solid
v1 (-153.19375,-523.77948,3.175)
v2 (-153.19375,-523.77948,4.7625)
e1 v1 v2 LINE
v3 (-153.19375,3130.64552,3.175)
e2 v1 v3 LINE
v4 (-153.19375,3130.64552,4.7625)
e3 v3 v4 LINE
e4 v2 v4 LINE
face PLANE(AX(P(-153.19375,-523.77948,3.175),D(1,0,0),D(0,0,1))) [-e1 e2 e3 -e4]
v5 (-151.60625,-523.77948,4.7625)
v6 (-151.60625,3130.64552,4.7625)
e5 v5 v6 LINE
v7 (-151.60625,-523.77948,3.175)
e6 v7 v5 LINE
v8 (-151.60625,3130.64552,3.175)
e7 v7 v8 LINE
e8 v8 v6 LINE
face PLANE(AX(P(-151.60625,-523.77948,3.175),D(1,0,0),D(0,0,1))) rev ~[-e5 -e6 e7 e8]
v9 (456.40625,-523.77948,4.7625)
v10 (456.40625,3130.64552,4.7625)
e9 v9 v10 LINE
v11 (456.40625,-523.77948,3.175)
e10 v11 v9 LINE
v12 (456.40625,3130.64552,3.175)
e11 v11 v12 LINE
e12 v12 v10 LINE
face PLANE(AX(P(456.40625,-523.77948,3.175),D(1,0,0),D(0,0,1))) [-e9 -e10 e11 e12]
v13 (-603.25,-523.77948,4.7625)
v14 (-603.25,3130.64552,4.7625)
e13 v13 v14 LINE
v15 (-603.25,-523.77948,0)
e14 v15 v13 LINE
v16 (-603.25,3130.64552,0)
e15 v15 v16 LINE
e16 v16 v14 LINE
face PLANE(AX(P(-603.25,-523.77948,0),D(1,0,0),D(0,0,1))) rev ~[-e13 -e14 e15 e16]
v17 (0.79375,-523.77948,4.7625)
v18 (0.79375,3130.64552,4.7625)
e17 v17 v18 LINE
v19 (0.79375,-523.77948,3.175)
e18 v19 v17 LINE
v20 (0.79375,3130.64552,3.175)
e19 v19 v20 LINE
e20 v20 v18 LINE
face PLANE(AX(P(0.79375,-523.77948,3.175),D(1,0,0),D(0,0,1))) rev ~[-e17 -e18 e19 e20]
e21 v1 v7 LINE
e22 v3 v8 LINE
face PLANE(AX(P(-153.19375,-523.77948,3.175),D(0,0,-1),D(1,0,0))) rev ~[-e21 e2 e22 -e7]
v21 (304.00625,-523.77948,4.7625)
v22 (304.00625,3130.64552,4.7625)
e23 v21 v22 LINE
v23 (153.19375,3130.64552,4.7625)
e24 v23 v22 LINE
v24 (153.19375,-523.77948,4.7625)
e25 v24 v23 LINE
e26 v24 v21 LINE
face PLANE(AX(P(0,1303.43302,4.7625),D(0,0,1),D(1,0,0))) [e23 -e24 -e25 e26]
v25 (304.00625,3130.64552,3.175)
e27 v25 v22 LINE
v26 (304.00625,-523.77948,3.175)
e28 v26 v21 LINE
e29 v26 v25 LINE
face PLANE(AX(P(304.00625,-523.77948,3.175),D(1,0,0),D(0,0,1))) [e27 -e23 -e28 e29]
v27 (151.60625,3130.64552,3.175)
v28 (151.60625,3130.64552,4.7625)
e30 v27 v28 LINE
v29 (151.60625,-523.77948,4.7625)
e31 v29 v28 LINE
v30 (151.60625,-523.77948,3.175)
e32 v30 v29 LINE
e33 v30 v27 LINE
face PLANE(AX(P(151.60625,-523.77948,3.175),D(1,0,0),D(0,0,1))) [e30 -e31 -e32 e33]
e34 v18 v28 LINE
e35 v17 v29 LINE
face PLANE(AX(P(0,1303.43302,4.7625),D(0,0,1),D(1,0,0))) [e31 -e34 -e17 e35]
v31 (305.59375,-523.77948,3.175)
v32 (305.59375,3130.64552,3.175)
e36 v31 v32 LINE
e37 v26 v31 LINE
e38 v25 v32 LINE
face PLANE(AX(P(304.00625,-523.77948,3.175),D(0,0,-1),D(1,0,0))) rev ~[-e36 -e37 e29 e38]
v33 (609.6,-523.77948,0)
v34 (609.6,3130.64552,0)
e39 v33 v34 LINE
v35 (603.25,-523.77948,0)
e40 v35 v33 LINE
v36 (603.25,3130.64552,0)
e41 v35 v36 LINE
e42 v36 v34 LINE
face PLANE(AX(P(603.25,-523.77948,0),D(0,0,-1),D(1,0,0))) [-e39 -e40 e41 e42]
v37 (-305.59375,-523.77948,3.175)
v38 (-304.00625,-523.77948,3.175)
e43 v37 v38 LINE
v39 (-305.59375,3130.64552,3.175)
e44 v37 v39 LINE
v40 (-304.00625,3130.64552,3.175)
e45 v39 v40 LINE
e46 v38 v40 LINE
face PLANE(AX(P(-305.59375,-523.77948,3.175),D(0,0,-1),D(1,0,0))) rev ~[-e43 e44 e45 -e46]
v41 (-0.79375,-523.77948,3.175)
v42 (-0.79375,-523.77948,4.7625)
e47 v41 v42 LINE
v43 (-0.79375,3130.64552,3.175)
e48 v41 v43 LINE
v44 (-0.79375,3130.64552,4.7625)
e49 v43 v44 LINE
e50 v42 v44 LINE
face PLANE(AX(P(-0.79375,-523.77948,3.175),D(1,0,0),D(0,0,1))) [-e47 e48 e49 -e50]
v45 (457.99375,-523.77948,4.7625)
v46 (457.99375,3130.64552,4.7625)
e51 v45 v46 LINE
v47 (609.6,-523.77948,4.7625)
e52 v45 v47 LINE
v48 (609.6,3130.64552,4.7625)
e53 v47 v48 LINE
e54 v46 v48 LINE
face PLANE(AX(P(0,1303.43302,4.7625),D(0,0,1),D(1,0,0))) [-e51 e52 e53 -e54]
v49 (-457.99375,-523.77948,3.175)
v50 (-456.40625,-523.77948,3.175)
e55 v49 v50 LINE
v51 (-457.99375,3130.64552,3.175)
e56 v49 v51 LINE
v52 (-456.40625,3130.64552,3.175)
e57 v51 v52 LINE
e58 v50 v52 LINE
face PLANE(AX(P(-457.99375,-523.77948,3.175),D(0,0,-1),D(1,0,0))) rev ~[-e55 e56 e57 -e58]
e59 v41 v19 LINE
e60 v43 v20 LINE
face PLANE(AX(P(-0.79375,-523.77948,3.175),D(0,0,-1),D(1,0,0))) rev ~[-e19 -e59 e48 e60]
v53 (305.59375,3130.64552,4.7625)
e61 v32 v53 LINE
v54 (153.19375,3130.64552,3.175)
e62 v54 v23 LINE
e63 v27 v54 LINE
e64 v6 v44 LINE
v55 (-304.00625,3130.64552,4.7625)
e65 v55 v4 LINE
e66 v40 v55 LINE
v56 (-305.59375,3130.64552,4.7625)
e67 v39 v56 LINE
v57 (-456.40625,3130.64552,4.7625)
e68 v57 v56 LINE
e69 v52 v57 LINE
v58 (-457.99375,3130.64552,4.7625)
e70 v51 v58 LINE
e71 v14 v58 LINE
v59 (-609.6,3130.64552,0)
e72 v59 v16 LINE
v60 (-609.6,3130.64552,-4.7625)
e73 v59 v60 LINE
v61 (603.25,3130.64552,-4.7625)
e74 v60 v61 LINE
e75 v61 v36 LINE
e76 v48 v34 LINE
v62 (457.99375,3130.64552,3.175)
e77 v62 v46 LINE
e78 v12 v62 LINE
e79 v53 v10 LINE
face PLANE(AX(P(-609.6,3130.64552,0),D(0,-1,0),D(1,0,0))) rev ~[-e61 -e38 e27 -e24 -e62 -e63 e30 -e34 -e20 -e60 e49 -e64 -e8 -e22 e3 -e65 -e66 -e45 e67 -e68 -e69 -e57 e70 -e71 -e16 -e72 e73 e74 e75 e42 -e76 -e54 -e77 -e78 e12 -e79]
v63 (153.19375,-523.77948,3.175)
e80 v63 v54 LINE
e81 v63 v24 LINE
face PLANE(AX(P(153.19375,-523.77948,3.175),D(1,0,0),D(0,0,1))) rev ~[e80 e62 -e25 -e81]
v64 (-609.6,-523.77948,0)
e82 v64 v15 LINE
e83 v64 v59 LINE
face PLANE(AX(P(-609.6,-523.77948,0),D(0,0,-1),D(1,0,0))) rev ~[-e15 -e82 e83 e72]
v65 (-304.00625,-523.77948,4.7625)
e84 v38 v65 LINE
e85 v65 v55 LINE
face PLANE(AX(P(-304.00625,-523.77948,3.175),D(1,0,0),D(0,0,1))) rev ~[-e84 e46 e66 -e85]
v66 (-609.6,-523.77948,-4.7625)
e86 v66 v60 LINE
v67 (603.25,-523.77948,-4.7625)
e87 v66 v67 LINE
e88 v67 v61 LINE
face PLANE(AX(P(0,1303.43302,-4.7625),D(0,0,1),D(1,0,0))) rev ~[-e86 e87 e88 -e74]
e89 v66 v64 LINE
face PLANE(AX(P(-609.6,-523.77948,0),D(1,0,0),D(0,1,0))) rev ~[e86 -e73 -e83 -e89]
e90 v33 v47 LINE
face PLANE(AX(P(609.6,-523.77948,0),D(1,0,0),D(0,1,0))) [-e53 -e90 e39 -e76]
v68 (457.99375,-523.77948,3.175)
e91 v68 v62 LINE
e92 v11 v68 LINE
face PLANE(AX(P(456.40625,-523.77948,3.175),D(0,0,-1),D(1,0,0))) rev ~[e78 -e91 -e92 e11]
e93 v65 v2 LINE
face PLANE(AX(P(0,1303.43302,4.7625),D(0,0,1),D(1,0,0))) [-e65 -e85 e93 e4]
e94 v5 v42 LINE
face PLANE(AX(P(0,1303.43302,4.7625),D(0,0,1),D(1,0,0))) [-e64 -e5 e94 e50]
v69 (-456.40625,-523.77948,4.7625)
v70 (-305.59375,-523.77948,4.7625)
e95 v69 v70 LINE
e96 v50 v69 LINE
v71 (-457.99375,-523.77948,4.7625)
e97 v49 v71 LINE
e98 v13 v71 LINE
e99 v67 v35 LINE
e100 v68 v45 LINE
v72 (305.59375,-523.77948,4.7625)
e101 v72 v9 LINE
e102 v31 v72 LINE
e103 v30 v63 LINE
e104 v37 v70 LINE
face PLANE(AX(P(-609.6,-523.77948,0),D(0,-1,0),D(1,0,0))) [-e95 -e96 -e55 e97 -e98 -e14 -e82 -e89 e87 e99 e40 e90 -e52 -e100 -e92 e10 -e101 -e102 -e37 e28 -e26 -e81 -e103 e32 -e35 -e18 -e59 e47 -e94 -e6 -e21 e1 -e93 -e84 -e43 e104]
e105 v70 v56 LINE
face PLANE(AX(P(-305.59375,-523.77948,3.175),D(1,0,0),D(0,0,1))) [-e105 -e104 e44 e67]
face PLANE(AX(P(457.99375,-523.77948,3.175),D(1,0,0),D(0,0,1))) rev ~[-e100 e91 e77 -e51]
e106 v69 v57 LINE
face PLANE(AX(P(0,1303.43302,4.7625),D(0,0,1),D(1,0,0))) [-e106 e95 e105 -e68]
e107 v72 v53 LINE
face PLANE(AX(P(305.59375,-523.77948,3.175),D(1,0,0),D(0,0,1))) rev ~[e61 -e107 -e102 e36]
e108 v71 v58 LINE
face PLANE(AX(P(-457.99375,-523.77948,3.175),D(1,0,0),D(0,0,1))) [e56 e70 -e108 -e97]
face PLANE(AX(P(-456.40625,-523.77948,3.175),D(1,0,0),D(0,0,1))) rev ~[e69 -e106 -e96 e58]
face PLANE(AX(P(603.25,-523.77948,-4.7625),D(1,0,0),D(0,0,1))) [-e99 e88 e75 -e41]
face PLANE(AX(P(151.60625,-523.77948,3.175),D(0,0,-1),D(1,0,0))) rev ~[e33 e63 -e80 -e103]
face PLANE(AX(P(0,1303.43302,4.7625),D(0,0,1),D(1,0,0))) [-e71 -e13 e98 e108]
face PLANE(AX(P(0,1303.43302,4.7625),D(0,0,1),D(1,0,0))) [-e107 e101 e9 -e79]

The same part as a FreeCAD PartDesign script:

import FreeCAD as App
import Part
import Sketcher

V = App.Vector
Q = App.Units.Quantity

doc = App.newDocument("Part")
body = doc.addObject("PartDesign::Body", "Body")

# Sketch on XY plane
sketch1 = doc.addObject("Sketcher::SketchObject", "Sketch")
body.addObject(sketch1)
sketch1.AttachmentSupport = (doc.XY_Plane, [""])
sketch1.MapMode = "FlatFace"
sketch1.addGeometry([
    Part.LineSegment(V(-609.6, 3130.64552, 0), V(-609.6, -523.77948, 0)),
    Part.LineSegment(V(-609.6, -523.77948, 0), V(609.6, -523.77948, 0)),
    Part.LineSegment(V(609.6, -523.77948, 0), V(609.6, 3130.64552, 0)),
    Part.LineSegment(V(609.6, 3130.64552, 0), V(-609.6, 3130.64552, 0)),
], False)
sketch1.addConstraint([
    Sketcher.Constraint("Coincident", 0, 2, 1, 1),
    Sketcher.Constraint("Coincident", 1, 2, 2, 1),
    Sketcher.Constraint("Coincident", 2, 2, 3, 1),
    Sketcher.Constraint("Coincident", 3, 2, 0, 1),
    Sketcher.Constraint("Vertical", 0),
    Sketcher.Constraint("Horizontal", 1),
    Sketcher.Constraint("Vertical", 2),
    Sketcher.Constraint("Horizontal", 3),
    Sketcher.Constraint("DistanceX", 1, 1, 1, 2, Q("48 in")),
    Sketcher.Constraint("DistanceX", 0, 2, -1, 1, Q("24 in")),
    Sketcher.Constraint("DistanceY", 0, 2, 0, 1, Q("143.875 in")),
    Sketcher.Constraint("DistanceY", 0, 2, -1, 1, Q("523.77948 mm")),
])
pad1 = doc.addObject("PartDesign::Pad", "Pad")
body.addObject(pad1)
pad1.Profile = sketch1
pad1.Length = Q("0.375 in")
pad1.Midplane = True

# Sketch on XZ plane
sketch2 = doc.addObject("Sketcher::SketchObject", "Sketch001")
body.addObject(sketch2)
sketch2.AttachmentSupport = (doc.XZ_Plane, [""])
sketch2.MapMode = "FlatFace"
sketch2.AttachmentOffset = App.Placement(V(0, 0, 523.77948), App.Rotation())
sketch2.addGeometry([
    Part.LineSegment(V(603.25, 0, 0), V(603.25, -4.7625, 0)),  # 0
    Part.LineSegment(V(603.25, -4.7625, 0), V(609.6, -4.7625, 0)),  # 1
    Part.LineSegment(V(609.6, -4.7625, 0), V(609.6, 0, 0)),  # 2
    Part.LineSegment(V(609.6, 0, 0), V(603.25, 0, 0)),  # 3
    Part.LineSegment(V(-609.6, 4.7625, 0), V(-609.6, 0, 0)),  # 4
    Part.LineSegment(V(-609.6, 0, 0), V(-603.25, 0, 0)),  # 5
    Part.LineSegment(V(-603.25, 0, 0), V(-603.25, 4.7625, 0)),  # 6
    Part.LineSegment(V(-603.25, 4.7625, 0), V(-609.6, 4.7625, 0)),  # 7
], False)
sketch2.addConstraint([
    Sketcher.Constraint("Coincident", 0, 2, 1, 1),
    Sketcher.Constraint("Coincident", 1, 2, 2, 1),
    Sketcher.Constraint("Coincident", 2, 2, 3, 1),
    Sketcher.Constraint("Coincident", 3, 2, 0, 1),
    Sketcher.Constraint("Coincident", 4, 2, 5, 1),
    Sketcher.Constraint("Coincident", 5, 2, 6, 1),
    Sketcher.Constraint("Coincident", 6, 2, 7, 1),
    Sketcher.Constraint("Coincident", 7, 2, 4, 1),
    Sketcher.Constraint("Vertical", 0),
    Sketcher.Constraint("Horizontal", 1),
    Sketcher.Constraint("Vertical", 2),
    Sketcher.Constraint("Horizontal", 3),
    Sketcher.Constraint("Vertical", 4),
    Sketcher.Constraint("Horizontal", 5),
    Sketcher.Constraint("Vertical", 6),
    Sketcher.Constraint("Horizontal", 7),
    Sketcher.Constraint("Symmetric", 2, 2, 4, 2, -1, 1),
    Sketcher.Constraint("Symmetric", 0, 2, 6, 2, -1, 1),
    Sketcher.Constraint("PointOnObject", 2, 2, -1),
    Sketcher.Constraint("DistanceX", -1, 1, 1, 2, Q("24 in")),
    Sketcher.Constraint("DistanceX", 1, 1, 1, 2, Q("0.25 in")),
    Sketcher.Constraint("DistanceY", 0, 2, 0, 1, Q("0.1875 in")),
])
pocket1 = doc.addObject("PartDesign::Pocket", "Pocket")
body.addObject(pocket1)
pocket1.Profile = sketch2
pocket1.Type = "ThroughAll"

# Sketch on XZ plane
sketch3 = doc.addObject("Sketcher::SketchObject", "Sketch002")
body.addObject(sketch3)
sketch3.AttachmentSupport = (doc.XZ_Plane, [""])
sketch3.MapMode = "FlatFace"
sketch3.AttachmentOffset = App.Placement(V(0, 0, 523.77948), App.Rotation())
sketch3.addGeometry([
    Part.LineSegment(V(-457.99375, 4.7625, 0), V(-457.99375, 3.175, 0)),  # 0
    Part.LineSegment(V(-457.99375, 3.175, 0), V(-456.40625, 3.175, 0)),  # 1
    Part.LineSegment(V(-456.40625, 3.175, 0), V(-456.40625, 4.7625, 0)),  # 2
    Part.LineSegment(V(-456.40625, 4.7625, 0), V(-457.99375, 4.7625, 0)),  # 3
    Part.LineSegment(V(-305.59375, 4.7625, 0), V(-305.59375, 3.175, 0)),  # 4
    Part.LineSegment(V(-305.59375, 3.175, 0), V(-304.00625, 3.175, 0)),  # 5
    Part.LineSegment(V(-304.00625, 3.175, 0), V(-304.00625, 4.7625, 0)),  # 6
    Part.LineSegment(V(-304.00625, 4.7625, 0), V(-305.59375, 4.7625, 0)),  # 7
    Part.LineSegment(V(-153.19375, 4.7625, 0), V(-153.19375, 3.175, 0)),  # 8
    Part.LineSegment(V(-153.19375, 3.175, 0), V(-151.60625, 3.175, 0)),  # 9
    Part.LineSegment(V(-151.60625, 3.175, 0), V(-151.60625, 4.7625, 0)),  # 10
    Part.LineSegment(V(-151.60625, 4.7625, 0), V(-153.19375, 4.7625, 0)),  # 11
    Part.LineSegment(V(-0.79375, 4.7625, 0), V(-0.79375, 3.175, 0)),  # 12
    Part.LineSegment(V(-0.79375, 3.175, 0), V(0.79375, 3.175, 0)),  # 13
    Part.LineSegment(V(0.79375, 3.175, 0), V(0.79375, 4.7625, 0)),  # 14
    Part.LineSegment(V(0.79375, 4.7625, 0), V(-0.79375, 4.7625, 0)),  # 15
    Part.LineSegment(V(151.60625, 4.7625, 0), V(151.60625, 3.175, 0)),  # 16
    Part.LineSegment(V(151.60625, 3.175, 0), V(153.19375, 3.175, 0)),  # 17
    Part.LineSegment(V(153.19375, 3.175, 0), V(153.19375, 4.7625, 0)),  # 18
    Part.LineSegment(V(153.19375, 4.7625, 0), V(151.60625, 4.7625, 0)),  # 19
    Part.LineSegment(V(304.00625, 4.7625, 0), V(304.00625, 3.175, 0)),  # 20
    Part.LineSegment(V(304.00625, 3.175, 0), V(305.59375, 3.175, 0)),  # 21
    Part.LineSegment(V(305.59375, 3.175, 0), V(305.59375, 4.7625, 0)),  # 22
    Part.LineSegment(V(305.59375, 4.7625, 0), V(304.00625, 4.7625, 0)),  # 23
    Part.LineSegment(V(456.40625, 4.7625, 0), V(456.40625, 3.175, 0)),  # 24
    Part.LineSegment(V(456.40625, 3.175, 0), V(457.99375, 3.175, 0)),  # 25
    Part.LineSegment(V(457.99375, 3.175, 0), V(457.99375, 4.7625, 0)),  # 26
    Part.LineSegment(V(457.99375, 4.7625, 0), V(456.40625, 4.7625, 0)),  # 27
], False)
sketch3.addConstraint([
    Sketcher.Constraint("Coincident", 0, 2, 1, 1),
    Sketcher.Constraint("Coincident", 1, 2, 2, 1),
    Sketcher.Constraint("Coincident", 2, 2, 3, 1),
    Sketcher.Constraint("Coincident", 3, 2, 0, 1),
    Sketcher.Constraint("Coincident", 4, 2, 5, 1),
    Sketcher.Constraint("Coincident", 5, 2, 6, 1),
    Sketcher.Constraint("Coincident", 6, 2, 7, 1),
    Sketcher.Constraint("Coincident", 7, 2, 4, 1),
    Sketcher.Constraint("Coincident", 8, 2, 9, 1),
    Sketcher.Constraint("Coincident", 9, 2, 10, 1),
    Sketcher.Constraint("Coincident", 10, 2, 11, 1),
    Sketcher.Constraint("Coincident", 11, 2, 8, 1),
    Sketcher.Constraint("Coincident", 12, 2, 13, 1),
    Sketcher.Constraint("Coincident", 13, 2, 14, 1),
    Sketcher.Constraint("Coincident", 14, 2, 15, 1),
    Sketcher.Constraint("Coincident", 15, 2, 12, 1),
    Sketcher.Constraint("Coincident", 16, 2, 17, 1),
    Sketcher.Constraint("Coincident", 17, 2, 18, 1),
    Sketcher.Constraint("Coincident", 18, 2, 19, 1),
    Sketcher.Constraint("Coincident", 19, 2, 16, 1),
    Sketcher.Constraint("Coincident", 20, 2, 21, 1),
    Sketcher.Constraint("Coincident", 21, 2, 22, 1),
    Sketcher.Constraint("Coincident", 22, 2, 23, 1),
    Sketcher.Constraint("Coincident", 23, 2, 20, 1),
    Sketcher.Constraint("Coincident", 24, 2, 25, 1),
    Sketcher.Constraint("Coincident", 25, 2, 26, 1),
    Sketcher.Constraint("Coincident", 26, 2, 27, 1),
    Sketcher.Constraint("Coincident", 27, 2, 24, 1),
    Sketcher.Constraint("Vertical", 0),
    Sketcher.Constraint("Horizontal", 1),
    Sketcher.Constraint("Vertical", 2),
    Sketcher.Constraint("Horizontal", 3),
    Sketcher.Constraint("Vertical", 4),
    Sketcher.Constraint("Horizontal", 5),
    Sketcher.Constraint("Vertical", 6),
    Sketcher.Constraint("Horizontal", 7),
    Sketcher.Constraint("Vertical", 8),
    Sketcher.Constraint("Horizontal", 9),
    Sketcher.Constraint("Vertical", 10),
    Sketcher.Constraint("Horizontal", 11),
    Sketcher.Constraint("Vertical", 12),
    Sketcher.Constraint("Horizontal", 13),
    Sketcher.Constraint("Vertical", 14),
    Sketcher.Constraint("Horizontal", 15),
    Sketcher.Constraint("Vertical", 16),
    Sketcher.Constraint("Horizontal", 17),
    Sketcher.Constraint("Vertical", 18),
    Sketcher.Constraint("Horizontal", 19),
    Sketcher.Constraint("Vertical", 20),
    Sketcher.Constraint("Horizontal", 21),
    Sketcher.Constraint("Vertical", 22),
    Sketcher.Constraint("Horizontal", 23),
    Sketcher.Constraint("Vertical", 24),
    Sketcher.Constraint("Horizontal", 25),
    Sketcher.Constraint("Vertical", 26),
    Sketcher.Constraint("Horizontal", 27),
    Sketcher.Constraint("Symmetric", 9, 2, 16, 2, -2),
    Sketcher.Constraint("Symmetric", 11, 2, 18, 2, -2),
    Sketcher.Constraint("Symmetric", 5, 2, 20, 2, -2),
    Sketcher.Constraint("Symmetric", 7, 2, 22, 2, -2),
    Sketcher.Constraint("Symmetric", 1, 2, 24, 2, -2),
    Sketcher.Constraint("Symmetric", 3, 2, 26, 2, -2),
    Sketcher.Constraint("Horizontal", 1, 2, 4, 2),
    Sketcher.Constraint("Horizontal", 3, 2, 6, 2),
    Sketcher.Constraint("Horizontal", 5, 2, 8, 2),
    Sketcher.Constraint("Horizontal", 7, 2, 10, 2),
    Sketcher.Constraint("Horizontal", 9, 2, 12, 2),
    Sketcher.Constraint("Horizontal", 11, 2, 14, 2),
    Sketcher.Constraint("Equal", 3, 5),
    Sketcher.Constraint("Equal", 7, 9),
    Sketcher.Constraint("Equal", 11, 13),
    Sketcher.Constraint("Equal", 27, 0),
    Sketcher.Constraint("DistanceX", 0, 2, 4, 2, Q("6 in")),
    Sketcher.Constraint("DistanceX", 4, 2, 8, 2, Q("6 in")),
    Sketcher.Constraint("DistanceX", 8, 2, 12, 2, Q("6 in")),
    Sketcher.Constraint("DistanceX", 12, 2, 16, 2, Q("6 in")),
    Sketcher.Constraint("DistanceX", 1, 1, 1, 2, Q("0.0625 in")),
    Sketcher.Constraint("DistanceY", -1, 1, 0, 2, Q("0.125 in")),
])
pocket2 = doc.addObject("PartDesign::Pocket", "Pocket001")
body.addObject(pocket2)
pocket2.Profile = sketch3
pocket2.Type = "ThroughAll"

doc.recompute()
